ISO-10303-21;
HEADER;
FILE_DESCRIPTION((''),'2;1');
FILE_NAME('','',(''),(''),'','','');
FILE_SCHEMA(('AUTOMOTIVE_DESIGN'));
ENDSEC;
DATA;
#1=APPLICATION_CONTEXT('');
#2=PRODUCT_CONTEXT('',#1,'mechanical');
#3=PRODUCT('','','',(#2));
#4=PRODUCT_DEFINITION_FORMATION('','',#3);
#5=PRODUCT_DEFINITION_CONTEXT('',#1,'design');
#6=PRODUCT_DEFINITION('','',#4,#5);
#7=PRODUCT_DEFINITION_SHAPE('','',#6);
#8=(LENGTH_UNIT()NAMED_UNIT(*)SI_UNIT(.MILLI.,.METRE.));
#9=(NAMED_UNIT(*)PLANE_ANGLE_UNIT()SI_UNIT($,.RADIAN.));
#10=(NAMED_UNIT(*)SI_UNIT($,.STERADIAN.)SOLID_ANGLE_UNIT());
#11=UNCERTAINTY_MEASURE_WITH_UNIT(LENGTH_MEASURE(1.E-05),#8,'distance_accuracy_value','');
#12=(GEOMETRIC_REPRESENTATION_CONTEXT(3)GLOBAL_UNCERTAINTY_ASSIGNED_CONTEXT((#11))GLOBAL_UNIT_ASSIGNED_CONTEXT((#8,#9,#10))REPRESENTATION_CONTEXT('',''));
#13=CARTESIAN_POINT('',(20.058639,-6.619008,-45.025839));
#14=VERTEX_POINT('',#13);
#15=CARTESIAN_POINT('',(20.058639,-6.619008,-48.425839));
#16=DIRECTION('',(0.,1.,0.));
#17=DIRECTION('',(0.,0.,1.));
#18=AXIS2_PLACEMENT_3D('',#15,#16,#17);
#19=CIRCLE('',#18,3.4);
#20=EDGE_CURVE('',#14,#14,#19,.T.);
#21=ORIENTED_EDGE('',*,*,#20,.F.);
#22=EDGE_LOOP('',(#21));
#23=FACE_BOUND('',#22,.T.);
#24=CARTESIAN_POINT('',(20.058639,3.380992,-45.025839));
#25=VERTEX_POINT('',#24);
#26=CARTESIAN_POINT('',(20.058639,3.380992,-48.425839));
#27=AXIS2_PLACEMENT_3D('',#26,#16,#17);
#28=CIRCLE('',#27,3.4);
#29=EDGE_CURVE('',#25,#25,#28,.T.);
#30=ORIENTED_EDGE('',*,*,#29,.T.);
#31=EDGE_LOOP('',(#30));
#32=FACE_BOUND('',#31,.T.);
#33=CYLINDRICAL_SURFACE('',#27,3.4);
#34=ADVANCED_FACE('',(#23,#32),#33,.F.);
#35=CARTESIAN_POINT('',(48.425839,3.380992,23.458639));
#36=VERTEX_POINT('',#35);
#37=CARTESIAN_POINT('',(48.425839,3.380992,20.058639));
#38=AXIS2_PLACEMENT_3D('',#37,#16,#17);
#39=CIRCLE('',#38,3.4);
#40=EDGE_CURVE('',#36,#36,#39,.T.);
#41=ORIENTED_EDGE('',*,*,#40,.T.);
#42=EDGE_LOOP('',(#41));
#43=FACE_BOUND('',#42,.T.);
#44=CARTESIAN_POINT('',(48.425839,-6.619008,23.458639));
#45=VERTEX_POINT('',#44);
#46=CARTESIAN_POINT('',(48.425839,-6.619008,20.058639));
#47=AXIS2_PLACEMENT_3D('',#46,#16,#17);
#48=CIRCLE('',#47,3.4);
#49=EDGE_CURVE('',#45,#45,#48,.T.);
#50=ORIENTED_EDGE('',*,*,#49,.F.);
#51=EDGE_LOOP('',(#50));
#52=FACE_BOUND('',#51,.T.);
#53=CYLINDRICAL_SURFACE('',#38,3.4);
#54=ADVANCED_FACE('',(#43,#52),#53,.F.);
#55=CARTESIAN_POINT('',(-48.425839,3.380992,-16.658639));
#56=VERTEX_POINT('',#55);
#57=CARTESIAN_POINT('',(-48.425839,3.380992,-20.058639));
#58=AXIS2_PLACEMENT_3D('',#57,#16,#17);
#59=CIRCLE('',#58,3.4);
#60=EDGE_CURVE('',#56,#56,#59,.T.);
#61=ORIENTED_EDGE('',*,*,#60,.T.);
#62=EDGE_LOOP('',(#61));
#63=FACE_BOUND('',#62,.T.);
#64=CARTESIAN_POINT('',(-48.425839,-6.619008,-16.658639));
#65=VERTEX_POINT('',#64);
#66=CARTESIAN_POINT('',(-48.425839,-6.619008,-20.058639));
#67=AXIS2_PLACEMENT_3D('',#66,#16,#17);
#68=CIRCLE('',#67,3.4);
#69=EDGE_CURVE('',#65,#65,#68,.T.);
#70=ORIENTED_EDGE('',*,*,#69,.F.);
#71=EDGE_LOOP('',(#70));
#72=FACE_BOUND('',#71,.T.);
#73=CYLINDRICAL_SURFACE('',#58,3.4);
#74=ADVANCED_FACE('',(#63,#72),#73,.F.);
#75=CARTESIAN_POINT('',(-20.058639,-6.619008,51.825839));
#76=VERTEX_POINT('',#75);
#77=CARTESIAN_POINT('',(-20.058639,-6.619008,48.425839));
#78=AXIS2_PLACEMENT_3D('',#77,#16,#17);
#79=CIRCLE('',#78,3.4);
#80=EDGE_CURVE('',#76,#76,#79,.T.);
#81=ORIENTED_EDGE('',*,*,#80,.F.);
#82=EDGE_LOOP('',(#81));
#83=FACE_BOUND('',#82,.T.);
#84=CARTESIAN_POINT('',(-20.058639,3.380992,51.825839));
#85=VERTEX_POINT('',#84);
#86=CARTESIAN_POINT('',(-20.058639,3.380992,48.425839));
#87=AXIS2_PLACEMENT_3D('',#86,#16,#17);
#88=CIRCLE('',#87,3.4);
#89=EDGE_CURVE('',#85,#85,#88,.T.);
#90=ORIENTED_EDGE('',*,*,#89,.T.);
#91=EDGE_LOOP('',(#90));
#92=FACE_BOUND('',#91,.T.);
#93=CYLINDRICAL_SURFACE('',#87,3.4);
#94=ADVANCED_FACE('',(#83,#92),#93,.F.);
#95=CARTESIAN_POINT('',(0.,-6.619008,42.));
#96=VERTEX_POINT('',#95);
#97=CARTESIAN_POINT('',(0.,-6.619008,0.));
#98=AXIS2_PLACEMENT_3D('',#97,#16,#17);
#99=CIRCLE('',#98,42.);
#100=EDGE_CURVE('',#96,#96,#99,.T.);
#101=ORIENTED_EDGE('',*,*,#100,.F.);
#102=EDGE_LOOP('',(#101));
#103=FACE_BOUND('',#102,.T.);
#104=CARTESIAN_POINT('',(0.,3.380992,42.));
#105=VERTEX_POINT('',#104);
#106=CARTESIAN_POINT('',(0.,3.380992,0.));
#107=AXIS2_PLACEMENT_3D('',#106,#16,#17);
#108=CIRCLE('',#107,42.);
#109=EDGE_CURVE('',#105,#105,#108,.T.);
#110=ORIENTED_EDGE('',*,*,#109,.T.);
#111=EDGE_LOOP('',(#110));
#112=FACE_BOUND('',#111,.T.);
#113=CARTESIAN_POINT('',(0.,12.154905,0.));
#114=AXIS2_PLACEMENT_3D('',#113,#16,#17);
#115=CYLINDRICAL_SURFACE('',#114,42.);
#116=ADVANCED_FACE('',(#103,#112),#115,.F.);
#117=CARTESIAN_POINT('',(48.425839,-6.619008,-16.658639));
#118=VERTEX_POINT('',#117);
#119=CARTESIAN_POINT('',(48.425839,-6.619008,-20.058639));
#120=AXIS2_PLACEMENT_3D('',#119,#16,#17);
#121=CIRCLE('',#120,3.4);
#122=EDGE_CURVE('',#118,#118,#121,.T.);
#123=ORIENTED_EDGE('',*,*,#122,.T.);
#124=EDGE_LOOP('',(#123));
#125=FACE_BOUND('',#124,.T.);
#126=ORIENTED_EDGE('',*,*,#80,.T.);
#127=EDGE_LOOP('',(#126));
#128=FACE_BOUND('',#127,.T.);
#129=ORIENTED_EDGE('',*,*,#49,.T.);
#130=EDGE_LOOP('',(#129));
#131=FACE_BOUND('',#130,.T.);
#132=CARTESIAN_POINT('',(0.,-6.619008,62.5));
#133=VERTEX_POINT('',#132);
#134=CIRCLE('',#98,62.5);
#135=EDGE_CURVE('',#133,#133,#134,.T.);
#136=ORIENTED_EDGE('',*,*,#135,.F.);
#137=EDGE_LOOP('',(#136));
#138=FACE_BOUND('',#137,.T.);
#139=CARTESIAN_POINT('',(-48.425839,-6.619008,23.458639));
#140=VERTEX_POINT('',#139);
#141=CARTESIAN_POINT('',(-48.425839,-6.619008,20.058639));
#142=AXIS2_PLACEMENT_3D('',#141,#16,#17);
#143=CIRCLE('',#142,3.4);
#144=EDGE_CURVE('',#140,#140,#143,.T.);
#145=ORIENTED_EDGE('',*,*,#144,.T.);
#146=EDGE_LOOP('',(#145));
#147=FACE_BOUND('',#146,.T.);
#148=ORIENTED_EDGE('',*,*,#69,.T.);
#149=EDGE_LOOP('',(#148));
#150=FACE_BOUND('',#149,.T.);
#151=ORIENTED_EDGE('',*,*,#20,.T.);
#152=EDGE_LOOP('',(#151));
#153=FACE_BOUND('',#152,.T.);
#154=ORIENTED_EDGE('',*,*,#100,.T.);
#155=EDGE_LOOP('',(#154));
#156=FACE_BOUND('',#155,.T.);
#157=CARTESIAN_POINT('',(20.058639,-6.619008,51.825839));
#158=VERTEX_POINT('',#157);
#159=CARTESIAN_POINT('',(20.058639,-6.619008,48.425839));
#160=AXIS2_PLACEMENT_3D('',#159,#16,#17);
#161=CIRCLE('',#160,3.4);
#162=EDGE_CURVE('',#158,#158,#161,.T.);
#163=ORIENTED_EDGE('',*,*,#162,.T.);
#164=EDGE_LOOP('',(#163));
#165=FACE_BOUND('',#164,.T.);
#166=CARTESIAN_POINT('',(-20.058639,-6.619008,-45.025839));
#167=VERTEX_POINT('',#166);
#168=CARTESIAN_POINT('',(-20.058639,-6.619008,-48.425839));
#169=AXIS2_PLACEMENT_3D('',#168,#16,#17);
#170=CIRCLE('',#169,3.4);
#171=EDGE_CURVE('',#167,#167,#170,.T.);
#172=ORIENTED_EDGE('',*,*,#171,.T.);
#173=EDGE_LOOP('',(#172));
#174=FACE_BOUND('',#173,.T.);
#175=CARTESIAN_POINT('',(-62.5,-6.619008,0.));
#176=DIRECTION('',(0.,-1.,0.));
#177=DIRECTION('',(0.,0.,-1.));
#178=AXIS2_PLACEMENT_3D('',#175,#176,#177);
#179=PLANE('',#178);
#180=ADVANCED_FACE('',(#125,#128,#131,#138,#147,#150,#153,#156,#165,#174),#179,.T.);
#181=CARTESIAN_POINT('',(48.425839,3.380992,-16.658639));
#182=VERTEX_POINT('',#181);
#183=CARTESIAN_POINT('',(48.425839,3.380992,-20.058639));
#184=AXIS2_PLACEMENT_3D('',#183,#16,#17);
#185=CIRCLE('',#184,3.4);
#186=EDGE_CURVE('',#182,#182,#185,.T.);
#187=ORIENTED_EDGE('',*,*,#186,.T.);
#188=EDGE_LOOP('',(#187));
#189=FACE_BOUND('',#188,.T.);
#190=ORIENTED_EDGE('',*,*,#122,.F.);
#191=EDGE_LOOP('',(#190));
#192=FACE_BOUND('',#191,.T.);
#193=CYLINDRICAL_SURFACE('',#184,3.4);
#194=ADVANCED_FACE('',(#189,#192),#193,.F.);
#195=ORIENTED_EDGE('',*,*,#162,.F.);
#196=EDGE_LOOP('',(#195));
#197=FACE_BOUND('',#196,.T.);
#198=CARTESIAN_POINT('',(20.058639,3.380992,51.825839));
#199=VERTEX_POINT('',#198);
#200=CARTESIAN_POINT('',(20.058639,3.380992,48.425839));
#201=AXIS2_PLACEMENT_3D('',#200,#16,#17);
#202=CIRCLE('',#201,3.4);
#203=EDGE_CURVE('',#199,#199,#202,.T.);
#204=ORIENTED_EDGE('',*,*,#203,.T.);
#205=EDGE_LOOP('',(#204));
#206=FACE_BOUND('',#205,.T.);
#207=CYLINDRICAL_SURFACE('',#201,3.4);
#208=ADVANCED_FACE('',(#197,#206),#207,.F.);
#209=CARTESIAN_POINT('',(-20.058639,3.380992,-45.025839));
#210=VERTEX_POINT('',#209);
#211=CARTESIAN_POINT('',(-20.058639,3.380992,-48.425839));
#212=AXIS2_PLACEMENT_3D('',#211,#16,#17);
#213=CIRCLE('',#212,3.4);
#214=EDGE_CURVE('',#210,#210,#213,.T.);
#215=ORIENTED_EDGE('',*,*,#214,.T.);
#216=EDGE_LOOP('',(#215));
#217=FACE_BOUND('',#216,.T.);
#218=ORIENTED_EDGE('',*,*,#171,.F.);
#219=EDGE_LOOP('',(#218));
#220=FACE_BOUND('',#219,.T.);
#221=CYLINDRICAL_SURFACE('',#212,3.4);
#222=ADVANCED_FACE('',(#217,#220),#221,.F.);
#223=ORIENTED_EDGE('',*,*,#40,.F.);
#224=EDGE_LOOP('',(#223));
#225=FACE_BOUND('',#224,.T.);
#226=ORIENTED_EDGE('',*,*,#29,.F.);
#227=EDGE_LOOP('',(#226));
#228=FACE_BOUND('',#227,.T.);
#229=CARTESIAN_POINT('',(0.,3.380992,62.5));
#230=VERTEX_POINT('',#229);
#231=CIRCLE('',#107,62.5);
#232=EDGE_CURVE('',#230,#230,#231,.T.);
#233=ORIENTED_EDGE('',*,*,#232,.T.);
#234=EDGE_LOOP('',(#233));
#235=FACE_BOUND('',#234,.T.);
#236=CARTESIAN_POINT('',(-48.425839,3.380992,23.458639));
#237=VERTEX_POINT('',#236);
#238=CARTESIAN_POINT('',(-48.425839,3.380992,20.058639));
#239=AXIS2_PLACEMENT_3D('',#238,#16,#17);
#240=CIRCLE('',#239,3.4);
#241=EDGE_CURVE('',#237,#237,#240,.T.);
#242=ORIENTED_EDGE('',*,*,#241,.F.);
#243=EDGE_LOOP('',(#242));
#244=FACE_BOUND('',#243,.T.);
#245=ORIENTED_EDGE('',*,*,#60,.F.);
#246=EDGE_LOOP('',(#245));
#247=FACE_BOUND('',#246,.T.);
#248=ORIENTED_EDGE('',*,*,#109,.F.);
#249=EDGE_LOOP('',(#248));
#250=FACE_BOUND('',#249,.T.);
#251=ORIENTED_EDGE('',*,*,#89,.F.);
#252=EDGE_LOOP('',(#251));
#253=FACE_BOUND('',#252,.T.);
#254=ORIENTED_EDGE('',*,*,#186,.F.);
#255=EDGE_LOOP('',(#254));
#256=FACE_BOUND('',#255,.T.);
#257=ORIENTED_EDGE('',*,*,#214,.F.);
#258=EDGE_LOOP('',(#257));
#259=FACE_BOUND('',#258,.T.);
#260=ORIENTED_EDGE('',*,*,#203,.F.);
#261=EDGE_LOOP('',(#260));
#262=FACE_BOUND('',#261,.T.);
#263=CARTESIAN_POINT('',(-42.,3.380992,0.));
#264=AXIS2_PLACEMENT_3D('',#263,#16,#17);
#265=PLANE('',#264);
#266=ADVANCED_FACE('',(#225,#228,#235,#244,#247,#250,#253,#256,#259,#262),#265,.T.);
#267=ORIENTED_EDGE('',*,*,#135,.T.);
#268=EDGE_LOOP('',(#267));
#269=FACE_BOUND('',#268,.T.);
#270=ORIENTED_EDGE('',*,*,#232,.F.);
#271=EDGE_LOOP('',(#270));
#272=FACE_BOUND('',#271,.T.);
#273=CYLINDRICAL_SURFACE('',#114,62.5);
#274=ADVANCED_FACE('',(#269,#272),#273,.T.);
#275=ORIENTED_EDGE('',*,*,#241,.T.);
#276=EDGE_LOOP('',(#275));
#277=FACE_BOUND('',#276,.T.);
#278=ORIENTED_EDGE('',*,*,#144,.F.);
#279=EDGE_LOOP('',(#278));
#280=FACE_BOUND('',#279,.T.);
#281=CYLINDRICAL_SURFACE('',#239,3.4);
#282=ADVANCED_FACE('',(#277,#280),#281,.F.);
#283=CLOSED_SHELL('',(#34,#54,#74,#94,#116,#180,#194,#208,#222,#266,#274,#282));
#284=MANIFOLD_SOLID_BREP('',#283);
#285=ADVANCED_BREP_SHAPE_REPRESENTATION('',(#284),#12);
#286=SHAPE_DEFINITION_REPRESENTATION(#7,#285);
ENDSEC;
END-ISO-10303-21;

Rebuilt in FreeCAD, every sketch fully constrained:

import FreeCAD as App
import Part
import Sketcher
from FreeCAD import Vector
Q = App.Units.Quantity

doc = App.newDocument("Part")
params = doc.addObject("Spreadsheet::Sheet", "Params")
for row, (alias, value) in enumerate([
    ("sketch1_height", "10 mm"),
    ("sketch1_width", "20.5 mm"),
    ("revolution_angle", "360 deg"),
    ("sketch2_diameter", "6.8 mm"),
    ("hole_diameter", "6.8 mm"),
], start=1):
    params.set(f"A{row}", alias)
    params.set(f"B{row}", "=" + value)
    params.setAlias(f"B{row}", alias)

body = doc.addObject("PartDesign::Body", "Body")

# Sketch on XY plane
sketch1 = body.newObject("Sketcher::SketchObject", "Sketch")
sketch1.AttachmentSupport = (doc.getObject("XY_Plane"), [""])
sketch1.MapMode = "FlatFace"
sketch1.addGeometry([
    Part.LineSegment(Vector(-62.5, 3.380992, 0), Vector(-62.5, -6.619008, 0)),
    Part.LineSegment(Vector(-62.5, -6.619008, 0), Vector(-42, -6.619008, 0)),
    Part.LineSegment(Vector(-42, -6.619008, 0), Vector(-42, 3.380992, 0)),
    Part.LineSegment(Vector(-42, 3.380992, 0), Vector(-62.5, 3.380992, 0)),
], False)
sketch1.addConstraint([
    Sketcher.Constraint("Coincident", 0, 2, 1, 1),
    Sketcher.Constraint("Coincident", 1, 2, 2, 1),
    Sketcher.Constraint("Coincident", 2, 2, 3, 1),
    Sketcher.Constraint("Coincident", 3, 2, 0, 1),
    Sketcher.Constraint("Vertical", 0),
    Sketcher.Constraint("Horizontal", 1),
    Sketcher.Constraint("Vertical", 2),
    Sketcher.Constraint("Horizontal", 3),
    Sketcher.Constraint("DistanceY", 0, 2, 0, 1, Q("10 mm")),
    Sketcher.Constraint("DistanceX", 1, 1, 1, 2, Q("20.5 mm")),
    Sketcher.Constraint("DistanceX", 1, 2, -1, 1, Q("42 mm")),
    Sketcher.Constraint("DistanceY", 0, 2, -1, 1, Q("6.619008 mm")),
])
sketch1.setExpression("Constraints[8]", "Params.sketch1_height")
sketch1.setExpression("Constraints[9]", "Params.sketch1_width")
revolution = body.newObject("PartDesign::Revolution", "Revolution")
revolution.Profile = sketch1
revolution.ReferenceAxis = (sketch1, ["V_Axis"])
revolution.setExpression("Angle", "Params.revolution_angle")

# Sketch on XZ plane
sketch2 = body.newObject("Sketcher::SketchObject", "Sketch001")
sketch2.AttachmentSupport = (doc.getObject("XZ_Plane"), [""])
sketch2.MapMode = "FlatFace"
sketch2.AttachmentOffset = App.Placement(Vector(0, 0, -3.380992), App.Rotation())
sketch2.addGeometry([
    Part.Circle(Vector(-20.058639, -48.425839, 0), Vector(0, 0, 1), 3.4),  # 0
    Part.Circle(Vector(20.058639, -48.425839, 0), Vector(0, 0, 1), 3.4),  # 1
    Part.Circle(Vector(48.425839, -20.058639, 0), Vector(0, 0, 1), 3.4),  # 2
    Part.Circle(Vector(48.425839, 20.058639, 0), Vector(0, 0, 1), 3.4),  # 3
    Part.Circle(Vector(20.058639, 48.425839, 0), Vector(0, 0, 1), 3.4),  # 4
    Part.Circle(Vector(-20.058639, 48.425839, 0), Vector(0, 0, 1), 3.4),  # 5
    Part.Circle(Vector(-48.425839, 20.058639, 0), Vector(0, 0, 1), 3.4),  # 6
    Part.Circle(Vector(-48.425839, -20.058639, 0), Vector(0, 0, 1), 3.4),  # 7
], False)
sketch2.addConstraint([
    Sketcher.Constraint("Equal", 0, 1),
    Sketcher.Constraint("Equal", 1, 2),
    Sketcher.Constraint("Equal", 2, 3),
    Sketcher.Constraint("Equal", 3, 4),
    Sketcher.Constraint("Equal", 4, 5),
    Sketcher.Constraint("Equal", 5, 6),
    Sketcher.Constraint("Equal", 6, 7),
    Sketcher.Constraint("Symmetric", 0, 3, 4, 3, -1, 1),
    Sketcher.Constraint("Symmetric", 1, 3, 5, 3, -1, 1),
    Sketcher.Constraint("Symmetric", 2, 3, 6, 3, -1, 1),
    Sketcher.Constraint("Symmetric", 3, 3, 7, 3, -1, 1),
    Sketcher.Constraint("Symmetric", 0, 3, 1, 3, -2),
    Sketcher.Constraint("Symmetric", 3, 3, 6, 3, -2),
    Sketcher.Constraint("Diameter", 0, Q("6.8 mm")),
    Sketcher.Constraint("DistanceX", 1, 3, 2, 3, Q("28.3672 mm")),
    Sketcher.Constraint("DistanceY", 1, 3, 2, 3, Q("28.3672 mm")),
    Sketcher.Constraint("DistanceX", 0, 3, -1, 1, Q("20.058639 mm")),
    Sketcher.Constraint("DistanceY", 0, 3, -1, 1, Q("48.425839 mm")),
])
sketch2.setExpression("Constraints[13]", "Params.sketch2_diameter")
doc.recompute()
hole = body.newObject("PartDesign::Hole", "Hole")
hole.Profile = sketch2
hole.ThreadType = "None"
hole.setExpression("Diameter", "Params.hole_diameter")
hole.DepthType = "ThroughAll"
hole.Reversed = True

doc.recompute()
